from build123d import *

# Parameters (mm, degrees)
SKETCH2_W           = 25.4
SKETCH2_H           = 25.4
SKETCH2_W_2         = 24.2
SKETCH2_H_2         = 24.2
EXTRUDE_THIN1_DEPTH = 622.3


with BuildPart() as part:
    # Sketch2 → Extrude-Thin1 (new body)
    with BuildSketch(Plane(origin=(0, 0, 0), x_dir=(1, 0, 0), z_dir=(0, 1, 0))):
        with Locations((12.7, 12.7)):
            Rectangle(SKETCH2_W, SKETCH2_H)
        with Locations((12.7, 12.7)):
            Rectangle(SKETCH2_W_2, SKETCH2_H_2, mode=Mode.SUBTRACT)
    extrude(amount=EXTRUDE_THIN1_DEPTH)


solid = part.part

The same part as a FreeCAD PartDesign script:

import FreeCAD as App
import Part
import Sketcher
Q = App.Units.Quantity


def add_polygon(sketch, points):
    """Adds a closed chain of lines whose ends are joined by coincident constraints."""
    first, n = sketch.GeometryCount, len(points)
    for a, b in zip(points, points[1:] + points[:1]):
        sketch.addGeometry(Part.LineSegment(App.Vector(*a, 0), App.Vector(*b, 0)), False)
    for i in range(n):
        sketch.addConstraint(Sketcher.Constraint("Coincident", first + i, 2, first + (i + 1) % n, 1))

doc = App.newDocument("Part")
body = doc.addObject("PartDesign::Body", "Body")

# Sketch on XZ plane
sketch1 = body.newObject("Sketcher::SketchObject", "Sketch")
sketch1.AttachmentSupport = (doc.getObject("XZ_Plane"), [""])
sketch1.MapMode = "FlatFace"
add_polygon(sketch1, [(0, -25), (0, 0), (25, 0), (25, -25)])  # lines 0-3
add_polygon(sketch1, [(25, -1), (1, -1), (1, -25), (25, -25)])  # lines 4-7
sketch1.addConstraint(Sketcher.Constraint("Vertical", 0))
sketch1.addConstraint(Sketcher.Constraint("Horizontal", 1))
sketch1.addConstraint(Sketcher.Constraint("Vertical", 2))
sketch1.addConstraint(Sketcher.Constraint("Horizontal", 3))
sketch1.addConstraint(Sketcher.Constraint("Horizontal", 4))
sketch1.addConstraint(Sketcher.Constraint("Vertical", 5))
sketch1.addConstraint(Sketcher.Constraint("Horizontal", 6))
sketch1.addConstraint(Sketcher.Constraint("Vertical", 7))
sketch1.addConstraint(Sketcher.Constraint("Coincident", 0, 2, -1, 1))
sketch1.addConstraint(Sketcher.Constraint("Equal", 3, 0))
sketch1.addConstraint(Sketcher.Constraint("Equal", 6, 5))
sketch1.addConstraint(Sketcher.Constraint("DistanceX", 1, 1, 1, 2, Q("1 in")))
sketch1.addConstraint(Sketcher.Constraint("DistanceX", 4, 2, 4, 1, Q("24.2 mm")))
sketch1.addConstraint(Sketcher.Constraint("DistanceX", -1, 1, 4, 2, Q("0.6 mm")))
sketch1.addConstraint(Sketcher.Constraint("DistanceY", 4, 2, -1, 1, Q("0.6 mm")))
pad1 = body.newObject("PartDesign::Pad", "Pad")
pad1.Profile = sketch1
pad1.Length = Q("24.5 in")
pad1.Reversed = True

doc.recompute()
